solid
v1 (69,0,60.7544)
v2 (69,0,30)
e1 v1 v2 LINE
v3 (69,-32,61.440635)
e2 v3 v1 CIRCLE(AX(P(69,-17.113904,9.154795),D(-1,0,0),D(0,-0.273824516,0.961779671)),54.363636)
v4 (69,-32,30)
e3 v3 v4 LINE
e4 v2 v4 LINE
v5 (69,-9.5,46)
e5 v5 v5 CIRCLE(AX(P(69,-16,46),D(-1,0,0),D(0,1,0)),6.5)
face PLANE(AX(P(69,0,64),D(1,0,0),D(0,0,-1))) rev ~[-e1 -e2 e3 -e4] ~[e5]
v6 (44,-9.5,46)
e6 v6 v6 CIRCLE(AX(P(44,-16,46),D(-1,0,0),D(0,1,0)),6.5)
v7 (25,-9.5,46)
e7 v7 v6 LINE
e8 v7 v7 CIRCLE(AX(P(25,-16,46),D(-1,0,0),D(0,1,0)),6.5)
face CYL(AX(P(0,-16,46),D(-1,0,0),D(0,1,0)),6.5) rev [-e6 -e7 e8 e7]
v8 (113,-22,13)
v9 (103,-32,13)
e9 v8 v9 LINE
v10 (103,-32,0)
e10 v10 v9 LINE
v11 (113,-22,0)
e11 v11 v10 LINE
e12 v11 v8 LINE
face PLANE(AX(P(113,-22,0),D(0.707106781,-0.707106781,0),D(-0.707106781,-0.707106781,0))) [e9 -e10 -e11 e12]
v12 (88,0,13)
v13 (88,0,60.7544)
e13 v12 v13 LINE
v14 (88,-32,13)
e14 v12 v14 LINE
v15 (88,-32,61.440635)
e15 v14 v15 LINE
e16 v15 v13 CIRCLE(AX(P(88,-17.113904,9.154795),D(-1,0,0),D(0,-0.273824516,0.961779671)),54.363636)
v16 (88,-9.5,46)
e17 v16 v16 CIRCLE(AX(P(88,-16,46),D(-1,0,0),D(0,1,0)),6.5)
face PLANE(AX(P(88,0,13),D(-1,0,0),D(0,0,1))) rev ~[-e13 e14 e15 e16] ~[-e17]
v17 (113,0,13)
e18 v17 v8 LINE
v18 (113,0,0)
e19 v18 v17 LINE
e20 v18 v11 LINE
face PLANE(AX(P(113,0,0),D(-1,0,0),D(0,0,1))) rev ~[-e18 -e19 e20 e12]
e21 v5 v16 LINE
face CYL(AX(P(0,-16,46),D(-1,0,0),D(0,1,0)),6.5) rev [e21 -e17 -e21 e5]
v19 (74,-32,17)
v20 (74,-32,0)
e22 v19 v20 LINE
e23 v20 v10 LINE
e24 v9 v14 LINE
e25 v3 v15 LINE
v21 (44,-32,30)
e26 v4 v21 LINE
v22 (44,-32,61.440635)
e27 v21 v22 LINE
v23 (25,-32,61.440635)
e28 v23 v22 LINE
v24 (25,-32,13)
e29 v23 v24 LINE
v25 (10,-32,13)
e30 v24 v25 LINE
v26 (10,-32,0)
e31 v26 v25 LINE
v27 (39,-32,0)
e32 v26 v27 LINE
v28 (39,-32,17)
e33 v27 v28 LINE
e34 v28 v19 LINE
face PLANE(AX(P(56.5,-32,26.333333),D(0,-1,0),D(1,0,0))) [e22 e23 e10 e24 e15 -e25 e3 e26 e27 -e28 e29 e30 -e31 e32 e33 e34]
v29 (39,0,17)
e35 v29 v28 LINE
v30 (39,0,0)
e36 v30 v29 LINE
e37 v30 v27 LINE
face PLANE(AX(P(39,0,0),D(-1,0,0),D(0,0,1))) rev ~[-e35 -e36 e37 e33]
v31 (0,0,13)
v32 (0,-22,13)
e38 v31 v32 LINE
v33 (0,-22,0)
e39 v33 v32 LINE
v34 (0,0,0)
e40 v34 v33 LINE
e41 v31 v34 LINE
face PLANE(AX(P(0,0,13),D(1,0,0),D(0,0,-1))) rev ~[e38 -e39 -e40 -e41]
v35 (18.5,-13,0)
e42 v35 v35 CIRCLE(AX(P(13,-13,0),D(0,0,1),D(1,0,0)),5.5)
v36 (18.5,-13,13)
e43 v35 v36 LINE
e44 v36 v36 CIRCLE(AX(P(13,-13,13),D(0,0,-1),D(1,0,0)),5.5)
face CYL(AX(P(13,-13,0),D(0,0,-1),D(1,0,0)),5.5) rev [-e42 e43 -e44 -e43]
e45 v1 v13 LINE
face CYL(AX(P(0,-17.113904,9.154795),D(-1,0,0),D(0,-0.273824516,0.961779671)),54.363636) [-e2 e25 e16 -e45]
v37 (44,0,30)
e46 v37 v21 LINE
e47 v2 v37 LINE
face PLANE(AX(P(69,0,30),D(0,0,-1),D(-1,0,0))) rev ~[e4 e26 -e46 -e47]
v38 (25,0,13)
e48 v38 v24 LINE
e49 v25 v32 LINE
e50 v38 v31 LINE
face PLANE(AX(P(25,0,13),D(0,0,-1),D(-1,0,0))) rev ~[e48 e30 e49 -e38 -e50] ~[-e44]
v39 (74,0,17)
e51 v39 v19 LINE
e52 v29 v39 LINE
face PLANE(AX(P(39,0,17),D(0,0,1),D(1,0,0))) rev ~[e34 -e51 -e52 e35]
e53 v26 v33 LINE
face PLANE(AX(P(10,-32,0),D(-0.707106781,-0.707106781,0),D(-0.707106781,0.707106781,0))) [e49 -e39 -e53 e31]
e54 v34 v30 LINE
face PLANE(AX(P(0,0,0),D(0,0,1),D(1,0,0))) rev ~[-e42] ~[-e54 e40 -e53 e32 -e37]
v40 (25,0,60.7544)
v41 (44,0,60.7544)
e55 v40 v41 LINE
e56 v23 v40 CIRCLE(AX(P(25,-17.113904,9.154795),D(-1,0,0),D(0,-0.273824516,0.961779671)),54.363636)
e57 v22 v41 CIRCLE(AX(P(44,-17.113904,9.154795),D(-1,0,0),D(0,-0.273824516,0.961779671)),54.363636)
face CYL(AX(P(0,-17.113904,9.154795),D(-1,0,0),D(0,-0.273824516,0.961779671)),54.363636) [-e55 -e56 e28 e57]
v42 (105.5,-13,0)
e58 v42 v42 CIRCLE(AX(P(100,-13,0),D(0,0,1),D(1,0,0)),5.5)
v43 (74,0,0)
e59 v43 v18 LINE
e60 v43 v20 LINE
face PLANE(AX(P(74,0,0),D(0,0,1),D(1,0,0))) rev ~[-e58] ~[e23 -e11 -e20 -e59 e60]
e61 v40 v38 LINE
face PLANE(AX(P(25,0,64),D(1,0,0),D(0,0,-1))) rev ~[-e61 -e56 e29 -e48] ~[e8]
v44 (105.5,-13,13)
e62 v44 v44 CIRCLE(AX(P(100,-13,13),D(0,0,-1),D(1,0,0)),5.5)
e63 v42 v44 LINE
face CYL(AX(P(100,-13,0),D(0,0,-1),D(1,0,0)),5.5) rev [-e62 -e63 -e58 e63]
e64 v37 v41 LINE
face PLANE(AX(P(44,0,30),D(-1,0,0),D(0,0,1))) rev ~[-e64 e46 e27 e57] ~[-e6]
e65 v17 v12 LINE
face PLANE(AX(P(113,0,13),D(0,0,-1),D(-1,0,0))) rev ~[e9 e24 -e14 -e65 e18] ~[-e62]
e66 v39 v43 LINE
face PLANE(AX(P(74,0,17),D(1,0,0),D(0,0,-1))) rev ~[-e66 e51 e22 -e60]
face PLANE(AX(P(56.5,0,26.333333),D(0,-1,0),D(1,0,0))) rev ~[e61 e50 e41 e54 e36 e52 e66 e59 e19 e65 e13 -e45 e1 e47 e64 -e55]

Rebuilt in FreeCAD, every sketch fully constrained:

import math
import FreeCAD as App
import Part
import Sketcher
Q = App.Units.Quantity


def add_polygon(sketch, points):
    """Adds a closed chain of lines whose ends are joined by coincident constraints."""
    first, n = sketch.GeometryCount, len(points)
    for a, b in zip(points, points[1:] + points[:1]):
        sketch.addGeometry(Part.LineSegment(App.Vector(*a, 0), App.Vector(*b, 0)), False)
    for i in range(n):
        sketch.addConstraint(Sketcher.Constraint("Coincident", first + i, 2, first + (i + 1) % n, 1))

doc = App.newDocument("Part")
body = doc.addObject("PartDesign::Body", "Body")

sketch1 = doc.addObject("Sketcher::SketchObject", "Sketch")
body.addObject(sketch1)
sketch1.AttachmentSupport = (doc.XZ_Plane, [""])
sketch1.MapMode = "FlatFace"
add_polygon(sketch1, [(0, 13), (0, 0), (39, 0), (39, 17), (74, 17), (74, 0), (113, 0), (113, 13), (88, 13), (88, 64), (69, 64), (69, 30), (44, 30), (44, 64), (25, 64), (25, 13)])
sketch1.addConstraint([
    Sketcher.Constraint("Vertical", 0),
    Sketcher.Constraint("Horizontal", 1),
    Sketcher.Constraint("Vertical", 2),
    Sketcher.Constraint("Horizontal", 3),
    Sketcher.Constraint("Vertical", 4),
    Sketcher.Constraint("Horizontal", 5),
    Sketcher.Constraint("Vertical", 6),
    Sketcher.Constraint("Horizontal", 7),
    Sketcher.Constraint("Vertical", 8),
    Sketcher.Constraint("Horizontal", 9),
    Sketcher.Constraint("Vertical", 10),
    Sketcher.Constraint("Horizontal", 11),
    Sketcher.Constraint("Vertical", 12),
    Sketcher.Constraint("Horizontal", 13),
    Sketcher.Constraint("Vertical", 14),
    Sketcher.Constraint("Horizontal", 15),
    Sketcher.Constraint("Coincident", 0, 2, -1, 1),
    Sketcher.Constraint("PointOnObject", 4, 2, -1),
    Sketcher.Constraint("Horizontal", 9, 2, 12, 2),
    Sketcher.Constraint("Horizontal", 7, 2, 14, 2),
    Sketcher.Constraint("Equal", 1, 5),
    Sketcher.Constraint("Equal", 7, 11),
    Sketcher.Constraint("Equal", 9, 13),
    Sketcher.Constraint("Equal", 11, 15),
    Sketcher.Constraint("DistanceX", 1, 1, 1, 2, Q("39 mm")),
    Sketcher.Constraint("DistanceX", 3, 1, 3, 2, Q("35 mm")),
    Sketcher.Constraint("DistanceX", 7, 2, 7, 1, Q("25 mm")),
    Sketcher.Constraint("DistanceY", 0, 2, 0, 1, Q("13 mm")),
    Sketcher.Constraint("DistanceY", 2, 1, 2, 2, Q("17 mm")),
    Sketcher.Constraint("DistanceY", 8, 1, 8, 2, Q("51 mm")),
    Sketcher.Constraint("DistanceY", 10, 2, 10, 1, Q("34 mm")),
])
pad1 = doc.addObject("PartDesign::Pad", "Pad")
body.addObject(pad1)
pad1.Profile = sketch1
pad1.Length = 32

sketch2 = doc.addObject("Sketcher::SketchObject", "Sketch001")
body.addObject(sketch2)
sketch2.AttachmentSupport = (doc.XY_Plane, [""])
sketch2.MapMode = "FlatFace"
sketch2.addGeometry(Part.Circle(App.Vector(13, -13, 0), App.Vector(0, 0, 1), 6), False)
sketch2.addGeometry(Part.Circle(App.Vector(100, -13, 0), App.Vector(0, 0, 1), 6), False)
add_polygon(sketch2, [(10, -32), (0, -22), (0, -32)])
add_polygon(sketch2, [(113, -22), (103, -32), (113, -32)])
sketch2.addConstraint([
    Sketcher.Constraint("Vertical", 3),
    Sketcher.Constraint("Horizontal", 4),
    Sketcher.Constraint("Horizontal", 6),
    Sketcher.Constraint("Vertical", 7),
    Sketcher.Constraint("Equal", 0, 1),
    Sketcher.Constraint("PointOnObject", 2, 2, -2),
    Sketcher.Constraint("Perpendicular", 2, 5),
    Sketcher.Constraint("Horizontal", 0, 3, 1, 3),
    Sketcher.Constraint("Horizontal", 4, 2, 5, 2),
    Sketcher.Constraint("Horizontal", 2, 2, 7, 2),
    Sketcher.Constraint("Equal", 4, 6),
    Sketcher.Constraint("Diameter", 0, Q("11 mm")),
    Sketcher.Constraint("DistanceX", 4, 1, 4, 2, Q("10 mm")),
    Sketcher.Constraint("DistanceX", -1, 1, 0, 3, Q("13 mm")),
    Sketcher.Constraint("DistanceY", 0, 3, -1, 1, Q("13 mm")),
    Sketcher.Constraint("DistanceX", -1, 1, 1, 3, Q("100 mm")),
    Sketcher.Constraint("DistanceY", 2, 2, -1, 1, Q("22 mm")),
    Sketcher.Constraint("DistanceX", -1, 1, 5, 2, Q("103 mm")),
])
pocket1 = doc.addObject("PartDesign::Pocket", "Pocket")
body.addObject(pocket1)
pocket1.Profile = sketch2
pocket1.Length = 25
pocket1.Reversed = True

sketch3 = doc.addObject("Sketcher::SketchObject", "Sketch002")
body.addObject(sketch3)
sketch3.AttachmentSupport = (doc.YZ_Plane, [""])
sketch3.MapMode = "FlatFace"
sketch3.addGeometry([
    Part.Circle(App.Vector(-16, 46, 0), App.Vector(0, 0, 1), 6.5),
    Part.ArcOfCircle(Part.Circle(App.Vector(-17.1, 9.2, 0), App.Vector(0, 0, 1), 54.4), math.radians(72), math.radians(106)),
    Part.LineSegment(App.Vector(0, 60.8, 0), App.Vector(0, 64, 0)),
    Part.LineSegment(App.Vector(0, 64, 0), App.Vector(-32, 64, 0)),
    Part.LineSegment(App.Vector(-32, 64, 0), App.Vector(-32, 61.4, 0)),
], False)
sketch3.addConstraint([
    Sketcher.Constraint("Coincident", 1, 1, 2, 1),
    Sketcher.Constraint("Coincident", 2, 2, 3, 1),
    Sketcher.Constraint("Coincident", 3, 2, 4, 1),
    Sketcher.Constraint("Coincident", 4, 2, 1, 2),
    Sketcher.Constraint("Vertical", 2),
    Sketcher.Constraint("Horizontal", 3),
    Sketcher.Constraint("Vertical", 4),
    Sketcher.Constraint("PointOnObject", 1, 1, -2),
    Sketcher.Constraint("Diameter", 0, Q("13 mm")),
    Sketcher.Constraint("DistanceX", 3, 2, 3, 1, Q("32 mm")),
    Sketcher.Constraint("DistanceX", 0, 3, -1, 1, Q("16 mm")),
    Sketcher.Constraint("DistanceY", -1, 1, 0, 3, Q("46 mm")),
    Sketcher.Constraint("DistanceY", -1, 1, 2, 2, Q("64 mm")),
    Sketcher.Constraint("DistanceY", 2, 1, 2, 2, Q("3.2456 mm")),
    Sketcher.Constraint("Radius", 1, Q("54.363636 mm")),
    Sketcher.Constraint("DistanceY", 4, 2, 4, 1, Q("2.559365 mm")),
])
pocket2 = doc.addObject("PartDesign::Pocket", "Pocket001")
body.addObject(pocket2)
pocket2.Profile = sketch3
pocket2.Length = 132.41419
pocket2.Reversed = True

doc.recompute()
